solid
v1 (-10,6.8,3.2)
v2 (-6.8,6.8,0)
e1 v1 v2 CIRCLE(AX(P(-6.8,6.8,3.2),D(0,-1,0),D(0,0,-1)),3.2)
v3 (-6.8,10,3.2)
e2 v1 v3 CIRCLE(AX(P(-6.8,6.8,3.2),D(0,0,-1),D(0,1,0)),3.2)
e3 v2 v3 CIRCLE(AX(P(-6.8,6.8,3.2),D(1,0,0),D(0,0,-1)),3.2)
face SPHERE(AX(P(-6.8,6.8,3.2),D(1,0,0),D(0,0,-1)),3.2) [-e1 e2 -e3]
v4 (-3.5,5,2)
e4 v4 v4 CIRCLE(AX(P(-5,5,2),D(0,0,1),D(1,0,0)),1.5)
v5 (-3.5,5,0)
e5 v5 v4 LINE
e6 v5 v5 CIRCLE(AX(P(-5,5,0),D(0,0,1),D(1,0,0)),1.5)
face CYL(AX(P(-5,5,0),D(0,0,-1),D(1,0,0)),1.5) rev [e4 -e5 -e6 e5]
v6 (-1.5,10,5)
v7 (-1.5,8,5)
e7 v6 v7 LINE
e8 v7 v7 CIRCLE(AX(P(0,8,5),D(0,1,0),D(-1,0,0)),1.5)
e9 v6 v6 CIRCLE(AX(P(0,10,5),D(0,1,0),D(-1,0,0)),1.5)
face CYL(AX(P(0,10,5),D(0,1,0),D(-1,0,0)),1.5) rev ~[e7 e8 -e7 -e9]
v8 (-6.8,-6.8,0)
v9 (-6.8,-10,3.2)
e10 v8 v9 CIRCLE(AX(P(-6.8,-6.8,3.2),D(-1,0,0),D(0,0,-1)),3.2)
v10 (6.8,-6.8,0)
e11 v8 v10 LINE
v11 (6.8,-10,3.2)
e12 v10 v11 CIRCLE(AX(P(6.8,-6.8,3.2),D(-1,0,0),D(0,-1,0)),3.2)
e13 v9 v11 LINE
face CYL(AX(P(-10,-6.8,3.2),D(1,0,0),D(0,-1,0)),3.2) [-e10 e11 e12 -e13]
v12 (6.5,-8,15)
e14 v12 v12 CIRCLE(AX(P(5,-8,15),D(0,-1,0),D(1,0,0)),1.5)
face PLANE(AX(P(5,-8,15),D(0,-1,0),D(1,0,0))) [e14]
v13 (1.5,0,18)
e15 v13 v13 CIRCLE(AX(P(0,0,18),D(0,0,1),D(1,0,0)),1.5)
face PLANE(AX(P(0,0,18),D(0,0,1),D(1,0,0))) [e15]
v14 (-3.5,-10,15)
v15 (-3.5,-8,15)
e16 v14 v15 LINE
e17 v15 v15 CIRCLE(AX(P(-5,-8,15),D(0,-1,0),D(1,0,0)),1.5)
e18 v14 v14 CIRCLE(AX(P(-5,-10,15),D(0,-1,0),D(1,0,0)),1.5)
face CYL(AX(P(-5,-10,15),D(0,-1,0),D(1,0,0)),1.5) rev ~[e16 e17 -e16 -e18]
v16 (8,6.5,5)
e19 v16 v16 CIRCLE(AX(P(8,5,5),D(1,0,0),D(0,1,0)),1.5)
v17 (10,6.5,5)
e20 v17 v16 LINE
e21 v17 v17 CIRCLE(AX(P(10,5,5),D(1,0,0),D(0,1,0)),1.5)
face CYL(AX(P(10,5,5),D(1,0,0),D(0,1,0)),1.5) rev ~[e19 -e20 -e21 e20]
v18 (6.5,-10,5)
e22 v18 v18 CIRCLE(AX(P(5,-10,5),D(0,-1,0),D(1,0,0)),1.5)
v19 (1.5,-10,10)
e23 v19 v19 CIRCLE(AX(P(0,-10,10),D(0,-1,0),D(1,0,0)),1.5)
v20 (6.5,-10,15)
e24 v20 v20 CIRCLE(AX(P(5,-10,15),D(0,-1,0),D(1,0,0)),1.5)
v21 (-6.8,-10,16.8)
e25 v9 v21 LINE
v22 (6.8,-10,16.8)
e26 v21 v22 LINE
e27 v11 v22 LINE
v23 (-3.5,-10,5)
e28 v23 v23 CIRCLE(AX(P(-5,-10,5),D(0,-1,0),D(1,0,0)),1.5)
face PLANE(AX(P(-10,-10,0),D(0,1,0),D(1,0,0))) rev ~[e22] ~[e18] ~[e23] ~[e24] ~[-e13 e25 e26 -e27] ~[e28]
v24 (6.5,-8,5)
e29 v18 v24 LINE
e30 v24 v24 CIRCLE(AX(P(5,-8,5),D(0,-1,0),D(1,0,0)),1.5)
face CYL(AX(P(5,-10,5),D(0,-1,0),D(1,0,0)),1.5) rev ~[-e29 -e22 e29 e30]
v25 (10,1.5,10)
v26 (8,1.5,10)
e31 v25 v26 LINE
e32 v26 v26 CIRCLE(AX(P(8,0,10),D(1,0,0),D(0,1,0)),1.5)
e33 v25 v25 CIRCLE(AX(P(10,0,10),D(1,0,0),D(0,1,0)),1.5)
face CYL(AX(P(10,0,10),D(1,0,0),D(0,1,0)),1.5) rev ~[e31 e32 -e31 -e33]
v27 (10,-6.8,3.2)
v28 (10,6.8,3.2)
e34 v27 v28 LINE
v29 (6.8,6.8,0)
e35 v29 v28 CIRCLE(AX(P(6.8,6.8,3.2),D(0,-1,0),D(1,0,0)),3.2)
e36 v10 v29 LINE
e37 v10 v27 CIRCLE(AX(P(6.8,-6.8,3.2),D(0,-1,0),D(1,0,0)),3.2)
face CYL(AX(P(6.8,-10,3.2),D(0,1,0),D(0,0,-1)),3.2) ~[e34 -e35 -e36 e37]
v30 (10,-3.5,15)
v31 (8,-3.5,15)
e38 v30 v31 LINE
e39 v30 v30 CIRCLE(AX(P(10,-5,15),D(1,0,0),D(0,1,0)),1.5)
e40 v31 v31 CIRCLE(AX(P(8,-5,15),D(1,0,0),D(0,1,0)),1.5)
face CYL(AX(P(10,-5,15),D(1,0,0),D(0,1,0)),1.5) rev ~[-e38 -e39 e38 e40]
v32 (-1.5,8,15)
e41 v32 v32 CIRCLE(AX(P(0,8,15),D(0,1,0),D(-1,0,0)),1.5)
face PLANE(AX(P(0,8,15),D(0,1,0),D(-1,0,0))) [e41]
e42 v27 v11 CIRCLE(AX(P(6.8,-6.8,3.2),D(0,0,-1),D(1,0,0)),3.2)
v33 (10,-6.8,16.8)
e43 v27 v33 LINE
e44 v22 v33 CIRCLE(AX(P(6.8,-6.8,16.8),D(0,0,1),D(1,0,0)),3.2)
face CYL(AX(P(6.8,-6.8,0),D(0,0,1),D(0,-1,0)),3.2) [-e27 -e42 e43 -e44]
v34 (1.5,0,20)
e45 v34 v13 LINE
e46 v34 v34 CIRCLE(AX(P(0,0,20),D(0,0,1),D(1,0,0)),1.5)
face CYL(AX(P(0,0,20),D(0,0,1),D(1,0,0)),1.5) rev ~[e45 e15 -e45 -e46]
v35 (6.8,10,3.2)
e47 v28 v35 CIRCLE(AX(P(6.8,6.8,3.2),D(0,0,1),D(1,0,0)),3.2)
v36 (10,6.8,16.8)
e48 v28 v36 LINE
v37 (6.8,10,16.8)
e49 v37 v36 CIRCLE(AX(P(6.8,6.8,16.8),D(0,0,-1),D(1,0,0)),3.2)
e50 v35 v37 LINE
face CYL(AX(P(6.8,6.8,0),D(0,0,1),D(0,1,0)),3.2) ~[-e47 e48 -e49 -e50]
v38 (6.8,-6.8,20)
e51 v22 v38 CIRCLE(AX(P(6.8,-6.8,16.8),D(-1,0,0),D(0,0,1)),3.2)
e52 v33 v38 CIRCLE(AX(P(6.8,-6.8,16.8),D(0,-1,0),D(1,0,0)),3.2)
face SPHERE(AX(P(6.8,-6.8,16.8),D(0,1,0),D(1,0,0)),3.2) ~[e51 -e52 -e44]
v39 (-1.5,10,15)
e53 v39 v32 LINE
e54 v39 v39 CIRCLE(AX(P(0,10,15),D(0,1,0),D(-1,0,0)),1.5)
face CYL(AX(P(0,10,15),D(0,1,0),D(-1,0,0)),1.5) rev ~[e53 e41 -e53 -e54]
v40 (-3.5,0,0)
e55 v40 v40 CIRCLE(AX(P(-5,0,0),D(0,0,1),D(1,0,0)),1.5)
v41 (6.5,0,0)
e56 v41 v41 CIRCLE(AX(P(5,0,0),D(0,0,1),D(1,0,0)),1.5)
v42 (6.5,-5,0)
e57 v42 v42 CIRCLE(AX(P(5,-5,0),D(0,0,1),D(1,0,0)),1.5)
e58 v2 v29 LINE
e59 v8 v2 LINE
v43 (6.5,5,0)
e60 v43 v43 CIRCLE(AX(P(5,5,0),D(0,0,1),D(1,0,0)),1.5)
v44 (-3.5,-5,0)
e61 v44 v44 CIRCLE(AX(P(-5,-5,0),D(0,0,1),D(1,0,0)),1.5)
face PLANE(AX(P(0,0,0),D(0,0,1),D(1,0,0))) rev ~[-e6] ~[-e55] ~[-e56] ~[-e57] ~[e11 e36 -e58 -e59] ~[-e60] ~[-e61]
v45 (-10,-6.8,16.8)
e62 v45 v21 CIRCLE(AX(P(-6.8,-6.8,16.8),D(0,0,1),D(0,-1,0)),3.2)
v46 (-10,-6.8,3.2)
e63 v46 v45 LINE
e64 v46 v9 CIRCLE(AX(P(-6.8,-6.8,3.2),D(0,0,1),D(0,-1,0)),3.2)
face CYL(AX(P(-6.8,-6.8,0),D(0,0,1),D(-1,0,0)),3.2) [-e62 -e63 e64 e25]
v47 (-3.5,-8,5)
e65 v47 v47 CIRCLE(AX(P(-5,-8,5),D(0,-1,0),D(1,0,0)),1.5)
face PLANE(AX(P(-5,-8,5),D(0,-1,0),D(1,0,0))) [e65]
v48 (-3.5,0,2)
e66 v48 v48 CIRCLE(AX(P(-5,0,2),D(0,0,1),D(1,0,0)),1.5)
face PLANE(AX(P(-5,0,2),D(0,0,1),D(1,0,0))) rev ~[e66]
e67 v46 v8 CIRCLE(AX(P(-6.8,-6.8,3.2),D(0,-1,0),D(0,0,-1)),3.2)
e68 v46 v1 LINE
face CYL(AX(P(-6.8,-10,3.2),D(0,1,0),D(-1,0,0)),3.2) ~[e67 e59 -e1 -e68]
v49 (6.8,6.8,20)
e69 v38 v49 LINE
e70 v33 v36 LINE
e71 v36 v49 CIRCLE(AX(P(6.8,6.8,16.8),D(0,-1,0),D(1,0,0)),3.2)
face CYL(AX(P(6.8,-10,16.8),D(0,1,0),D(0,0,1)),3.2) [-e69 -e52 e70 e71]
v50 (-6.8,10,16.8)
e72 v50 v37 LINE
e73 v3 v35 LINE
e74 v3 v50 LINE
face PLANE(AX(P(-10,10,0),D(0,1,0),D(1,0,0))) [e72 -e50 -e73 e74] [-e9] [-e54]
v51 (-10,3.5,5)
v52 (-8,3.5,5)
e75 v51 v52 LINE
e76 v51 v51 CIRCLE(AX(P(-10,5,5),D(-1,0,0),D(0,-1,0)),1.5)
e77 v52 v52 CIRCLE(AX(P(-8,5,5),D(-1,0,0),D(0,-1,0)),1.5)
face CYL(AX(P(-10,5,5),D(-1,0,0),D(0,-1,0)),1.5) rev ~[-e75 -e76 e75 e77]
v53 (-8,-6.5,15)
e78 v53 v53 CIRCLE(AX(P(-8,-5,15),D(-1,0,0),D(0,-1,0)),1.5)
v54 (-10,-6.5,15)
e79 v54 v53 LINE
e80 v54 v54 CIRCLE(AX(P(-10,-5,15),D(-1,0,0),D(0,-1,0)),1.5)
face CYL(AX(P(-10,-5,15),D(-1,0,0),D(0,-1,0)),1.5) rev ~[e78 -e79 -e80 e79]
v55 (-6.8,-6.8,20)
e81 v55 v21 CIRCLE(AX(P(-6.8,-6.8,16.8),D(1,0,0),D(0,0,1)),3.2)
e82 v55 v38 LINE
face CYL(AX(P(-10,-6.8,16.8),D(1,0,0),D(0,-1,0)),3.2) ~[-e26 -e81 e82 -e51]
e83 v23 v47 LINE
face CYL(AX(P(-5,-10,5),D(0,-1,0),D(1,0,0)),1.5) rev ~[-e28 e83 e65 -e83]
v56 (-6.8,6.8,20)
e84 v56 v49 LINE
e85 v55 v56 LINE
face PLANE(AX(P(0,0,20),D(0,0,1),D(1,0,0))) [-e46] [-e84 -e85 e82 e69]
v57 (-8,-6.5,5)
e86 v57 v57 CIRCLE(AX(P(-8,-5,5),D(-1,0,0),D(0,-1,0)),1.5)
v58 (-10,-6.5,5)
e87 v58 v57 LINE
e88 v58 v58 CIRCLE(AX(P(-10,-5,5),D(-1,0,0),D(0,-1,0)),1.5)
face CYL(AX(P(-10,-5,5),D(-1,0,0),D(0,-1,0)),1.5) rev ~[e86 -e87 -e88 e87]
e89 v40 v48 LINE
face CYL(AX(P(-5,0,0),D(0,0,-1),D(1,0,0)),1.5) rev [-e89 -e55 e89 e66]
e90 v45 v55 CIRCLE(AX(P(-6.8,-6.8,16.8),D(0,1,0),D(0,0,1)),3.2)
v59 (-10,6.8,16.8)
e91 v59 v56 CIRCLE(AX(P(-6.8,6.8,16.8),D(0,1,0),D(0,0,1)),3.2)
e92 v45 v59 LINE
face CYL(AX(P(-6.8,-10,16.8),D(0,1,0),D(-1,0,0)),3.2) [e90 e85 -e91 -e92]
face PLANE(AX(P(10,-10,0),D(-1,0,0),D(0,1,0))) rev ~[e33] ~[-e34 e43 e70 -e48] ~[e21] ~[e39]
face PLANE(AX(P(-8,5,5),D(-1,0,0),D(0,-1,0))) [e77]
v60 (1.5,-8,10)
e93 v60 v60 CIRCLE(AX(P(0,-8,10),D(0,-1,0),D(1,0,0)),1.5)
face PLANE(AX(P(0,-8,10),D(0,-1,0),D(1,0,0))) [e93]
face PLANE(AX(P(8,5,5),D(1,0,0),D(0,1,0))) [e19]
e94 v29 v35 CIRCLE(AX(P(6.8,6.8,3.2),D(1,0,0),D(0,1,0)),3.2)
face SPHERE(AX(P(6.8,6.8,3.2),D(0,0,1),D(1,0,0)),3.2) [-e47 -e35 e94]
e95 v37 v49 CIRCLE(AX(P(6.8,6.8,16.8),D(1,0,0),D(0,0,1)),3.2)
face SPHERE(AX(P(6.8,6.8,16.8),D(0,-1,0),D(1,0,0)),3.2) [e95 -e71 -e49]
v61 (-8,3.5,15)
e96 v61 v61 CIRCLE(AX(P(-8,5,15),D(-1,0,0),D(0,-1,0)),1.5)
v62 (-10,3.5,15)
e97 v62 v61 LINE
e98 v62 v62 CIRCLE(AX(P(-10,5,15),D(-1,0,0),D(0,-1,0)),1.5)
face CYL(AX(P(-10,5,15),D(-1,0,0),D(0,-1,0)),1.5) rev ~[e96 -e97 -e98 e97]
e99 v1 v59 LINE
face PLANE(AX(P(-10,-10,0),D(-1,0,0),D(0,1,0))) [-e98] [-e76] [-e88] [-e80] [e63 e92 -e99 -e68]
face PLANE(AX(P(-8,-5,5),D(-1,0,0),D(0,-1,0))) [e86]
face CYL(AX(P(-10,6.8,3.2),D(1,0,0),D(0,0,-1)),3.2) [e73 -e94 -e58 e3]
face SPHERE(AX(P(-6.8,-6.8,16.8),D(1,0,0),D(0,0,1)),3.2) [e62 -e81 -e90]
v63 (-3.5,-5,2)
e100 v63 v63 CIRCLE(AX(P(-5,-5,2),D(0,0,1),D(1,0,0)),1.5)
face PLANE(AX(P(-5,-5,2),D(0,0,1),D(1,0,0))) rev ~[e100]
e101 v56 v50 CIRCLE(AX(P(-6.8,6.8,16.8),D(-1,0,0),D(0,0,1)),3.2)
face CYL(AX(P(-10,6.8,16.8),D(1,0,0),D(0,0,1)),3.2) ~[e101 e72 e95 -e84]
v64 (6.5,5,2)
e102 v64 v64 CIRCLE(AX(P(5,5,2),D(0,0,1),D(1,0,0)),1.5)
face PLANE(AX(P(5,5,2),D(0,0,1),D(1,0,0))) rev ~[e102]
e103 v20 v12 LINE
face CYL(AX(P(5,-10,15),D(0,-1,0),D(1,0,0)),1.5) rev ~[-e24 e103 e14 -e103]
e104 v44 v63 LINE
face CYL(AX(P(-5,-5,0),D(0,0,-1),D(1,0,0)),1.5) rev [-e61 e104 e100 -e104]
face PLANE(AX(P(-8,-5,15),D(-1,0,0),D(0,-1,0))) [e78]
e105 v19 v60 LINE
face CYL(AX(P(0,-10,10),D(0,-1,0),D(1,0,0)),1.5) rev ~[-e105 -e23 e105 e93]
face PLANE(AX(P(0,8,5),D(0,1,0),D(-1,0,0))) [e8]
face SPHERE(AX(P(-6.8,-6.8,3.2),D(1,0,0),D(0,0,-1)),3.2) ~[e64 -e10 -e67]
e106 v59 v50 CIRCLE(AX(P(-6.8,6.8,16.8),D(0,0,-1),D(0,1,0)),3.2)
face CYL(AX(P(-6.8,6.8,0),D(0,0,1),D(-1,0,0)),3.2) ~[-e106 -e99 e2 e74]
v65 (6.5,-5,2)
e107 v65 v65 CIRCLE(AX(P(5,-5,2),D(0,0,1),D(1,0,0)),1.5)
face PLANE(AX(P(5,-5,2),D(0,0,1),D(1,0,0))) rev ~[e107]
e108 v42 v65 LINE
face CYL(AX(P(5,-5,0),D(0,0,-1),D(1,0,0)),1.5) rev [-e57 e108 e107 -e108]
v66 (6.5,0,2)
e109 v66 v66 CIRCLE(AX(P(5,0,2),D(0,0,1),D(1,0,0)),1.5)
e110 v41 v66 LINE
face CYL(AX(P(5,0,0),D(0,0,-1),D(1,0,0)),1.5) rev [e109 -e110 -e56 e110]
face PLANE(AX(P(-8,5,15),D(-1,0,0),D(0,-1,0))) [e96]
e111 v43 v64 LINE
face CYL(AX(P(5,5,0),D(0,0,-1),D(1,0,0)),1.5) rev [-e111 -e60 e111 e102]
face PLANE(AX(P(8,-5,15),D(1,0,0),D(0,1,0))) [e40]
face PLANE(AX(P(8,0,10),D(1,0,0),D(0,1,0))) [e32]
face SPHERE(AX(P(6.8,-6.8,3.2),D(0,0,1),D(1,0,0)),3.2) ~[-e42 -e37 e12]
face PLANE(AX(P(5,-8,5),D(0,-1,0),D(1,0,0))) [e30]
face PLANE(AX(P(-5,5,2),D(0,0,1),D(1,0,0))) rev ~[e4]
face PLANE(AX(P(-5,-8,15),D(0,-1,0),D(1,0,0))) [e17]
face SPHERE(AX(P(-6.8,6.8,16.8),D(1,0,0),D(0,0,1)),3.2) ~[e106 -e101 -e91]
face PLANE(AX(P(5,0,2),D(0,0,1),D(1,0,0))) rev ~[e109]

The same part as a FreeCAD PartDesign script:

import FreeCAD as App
import Part
import Sketcher
from FreeCAD import Vector
Q = App.Units.Quantity


def edges_at(feature, points):
    """Names of the edges that pass closest to the given points."""
    edges = feature.Shape.Edges
    near = lambda p: min(range(len(edges)), key=lambda i: edges[i].distToShape(Part.Vertex(*p))[0])
    return sorted({f"Edge{near(p) + 1}" for p in points})

doc = App.newDocument("Part")
body = doc.addObject("PartDesign::Body", "Body")

# Sketch on XY plane
sketch1 = body.newObject("Sketcher::SketchObject", "Sketch")
sketch1.AttachmentSupport = (doc.getObject("XY_Plane"), [""])
sketch1.MapMode = "FlatFace"
sketch1.addGeometry([
    Part.LineSegment(Vector(-10, 10, 0), Vector(-10, -10, 0)),
    Part.LineSegment(Vector(-10, -10, 0), Vector(10, -10, 0)),
    Part.LineSegment(Vector(10, -10, 0), Vector(10, 10, 0)),
    Part.LineSegment(Vector(10, 10, 0), Vector(-10, 10, 0)),
], False)
sketch1.addConstraint([
    Sketcher.Constraint("Coincident", 0, 2, 1, 1),
    Sketcher.Constraint("Coincident", 1, 2, 2, 1),
    Sketcher.Constraint("Coincident", 2, 2, 3, 1),
    Sketcher.Constraint("Coincident", 3, 2, 0, 1),
    Sketcher.Constraint("Vertical", 0),
    Sketcher.Constraint("Horizontal", 1),
    Sketcher.Constraint("Vertical", 2),
    Sketcher.Constraint("Horizontal", 3),
    Sketcher.Constraint("Symmetric", 0, 2, 2, 2, -1, 1),
    Sketcher.Constraint("Equal", 3, 0),
    Sketcher.Constraint("DistanceX", 1, 1, 1, 2, Q("20 mm")),
])
pad1 = body.newObject("PartDesign::Pad", "Pad")
pad1.Profile = sketch1
pad1.Length = 20

# Sketch on XY plane
sketch2 = body.newObject("Sketcher::SketchObject", "Sketch001")
sketch2.AttachmentSupport = (doc.getObject("XY_Plane"), [""])
sketch2.MapMode = "FlatFace"
sketch2.addGeometry([
    Part.Circle(Vector(-5, 5, 0), Vector(0, 0, 1), 1.5),  # 0
    Part.Circle(Vector(5, 5, 0), Vector(0, 0, 1), 1.5),  # 1
    Part.Circle(Vector(-5, 0, 0), Vector(0, 0, 1), 1.5),  # 2
    Part.Circle(Vector(5, 0, 0), Vector(0, 0, 1), 1.5),  # 3
    Part.Circle(Vector(-5, -5, 0), Vector(0, 0, 1), 1.5),  # 4
    Part.Circle(Vector(5, -5, 0), Vector(0, 0, 1), 1.5),  # 5
], False)
sketch2.addConstraint([
    Sketcher.Constraint("Equal", 0, 1),
    Sketcher.Constraint("Equal", 1, 2),
    Sketcher.Constraint("Equal", 2, 3),
    Sketcher.Constraint("Equal", 3, 4),
    Sketcher.Constraint("Equal", 4, 5),
    Sketcher.Constraint("Symmetric", 2, 3, 3, 3, -1, 1),
    Sketcher.Constraint("Symmetric", 1, 3, 4, 3, -1, 1),
    Sketcher.Constraint("Symmetric", 0, 3, 5, 3, -1, 1),
    Sketcher.Constraint("Symmetric", 0, 3, 1, 3, -2),
    Sketcher.Constraint("PointOnObject", 2, 3, -1),
    Sketcher.Constraint("Vertical", 0, 3, 2, 3),
    Sketcher.Constraint("Diameter", 0, Q("3 mm")),
    Sketcher.Constraint("DistanceX", 0, 3, -1, 1, Q("5 mm")),
    Sketcher.Constraint("DistanceY", -1, 1, 0, 3, Q("5 mm")),
])
pocket1 = body.newObject("PartDesign::Pocket", "Pocket")
pocket1.Profile = sketch2
pocket1.Length = 2
pocket1.Reversed = True

# Sketch on XY plane
sketch3 = body.newObject("Sketcher::SketchObject", "Sketch002")
sketch3.AttachmentSupport = (doc.getObject("XY_Plane"), [""])
sketch3.MapMode = "FlatFace"
sketch3.AttachmentOffset = App.Placement(Vector(0, 0, 20), App.Rotation())
sketch3.addGeometry(Part.Circle(Vector(0, 0, 0), Vector(0, 0, 1), 1.5), False)
sketch3.addConstraint([
    Sketcher.Constraint("Coincident", 0, 3, -1, 1),
    Sketcher.Constraint("Diameter", 0, Q("3 mm")),
])
pocket2 = body.newObject("PartDesign::Pocket", "Pocket001")
pocket2.Profile = sketch3
pocket2.Length = 2

# Sketch on XZ plane
sketch4 = body.newObject("Sketcher::SketchObject", "Sketch003")
sketch4.AttachmentSupport = (doc.getObject("XZ_Plane"), [""])
sketch4.MapMode = "FlatFace"
sketch4.AttachmentOffset = App.Placement(Vector(0, 0, 10), App.Rotation())
sketch4.addGeometry([
    Part.Circle(Vector(0, 10, 0), Vector(0, 0, 1), 1.5),  # 0
    Part.Circle(Vector(-5, 5, 0), Vector(0, 0, 1), 1.5),  # 1
    Part.Circle(Vector(-5, 15, 0), Vector(0, 0, 1), 1.5),  # 2
    Part.Circle(Vector(5, 5, 0), Vector(0, 0, 1), 1.5),  # 3
    Part.Circle(Vector(5, 15, 0), Vector(0, 0, 1), 1.5),  # 4
], False)
sketch4.addConstraint([
    Sketcher.Constraint("Equal", 0, 1),
    Sketcher.Constraint("Equal", 1, 2),
    Sketcher.Constraint("Equal", 2, 3),
    Sketcher.Constraint("Equal", 3, 4),
    Sketcher.Constraint("Symmetric", 1, 3, 3, 3, -2),
    Sketcher.Constraint("Symmetric", 2, 3, 4, 3, -2),
    Sketcher.Constraint("PointOnObject", 0, 3, -2),
    Sketcher.Constraint("Vertical", 1, 3, 2, 3),
    Sketcher.Constraint("Diameter", 0, Q("3 mm")),
    Sketcher.Constraint("DistanceY", -1, 1, 0, 3, Q("10 mm")),
    Sketcher.Constraint("DistanceX", 1, 3, -1, 1, Q("5 mm")),
    Sketcher.Constraint("DistanceY", -1, 1, 1, 3, Q("5 mm")),
    Sketcher.Constraint("DistanceY", -1, 1, 2, 3, Q("15 mm")),
])
pocket3 = body.newObject("PartDesign::Pocket", "Pocket002")
pocket3.Profile = sketch4
pocket3.Length = 2

# Sketch on YZ plane
sketch5 = body.newObject("Sketcher::SketchObject", "Sketch004")
sketch5.AttachmentSupport = (doc.getObject("YZ_Plane"), [""])
sketch5.MapMode = "FlatFace"
sketch5.AttachmentOffset = App.Placement(Vector(0, 0, -10), App.Rotation())
sketch5.addGeometry([
    Part.Circle(Vector(5, 5, 0), Vector(0, 0, 1), 1.5),
    Part.Circle(Vector(5, 15, 0), Vector(0, 0, 1), 1.5),
    Part.Circle(Vector(-5, 5, 0), Vector(0, 0, 1), 1.5),
    Part.Circle(Vector(-5, 15, 0), Vector(0, 0, 1), 1.5),
], False)
sketch5.addConstraint([
    Sketcher.Constraint("Equal", 0, 1),
    Sketcher.Constraint("Equal", 1, 2),
    Sketcher.Constraint("Equal", 2, 3),
    Sketcher.Constraint("Symmetric", 0, 3, 2, 3, -2),
    Sketcher.Constraint("Symmetric", 1, 3, 3, 3, -2),
    Sketcher.Constraint("Vertical", 0, 3, 1, 3),
    Sketcher.Constraint("Diameter", 0, Q("3 mm")),
    Sketcher.Constraint("DistanceX", -1, 1, 0, 3, Q("5 mm")),
    Sketcher.Constraint("DistanceY", -1, 1, 0, 3, Q("5 mm")),
    Sketcher.Constraint("DistanceY", -1, 1, 1, 3, Q("15 mm")),
])
pocket4 = body.newObject("PartDesign::Pocket", "Pocket003")
pocket4.Profile = sketch5
pocket4.Length = 2
pocket4.Reversed = True

# Sketch on YZ plane
sketch6 = body.newObject("Sketcher::SketchObject", "Sketch005")
sketch6.AttachmentSupport = (doc.getObject("YZ_Plane"), [""])
sketch6.MapMode = "FlatFace"
sketch6.AttachmentOffset = App.Placement(Vector(0, 0, 10), App.Rotation())
sketch6.addGeometry([
    Part.Circle(Vector(5, 5, 0), Vector(0, 0, 1), 1.5),
    Part.Circle(Vector(0, 10, 0), Vector(0, 0, 1), 1.5),
    Part.Circle(Vector(-5, 15, 0), Vector(0, 0, 1), 1.5),
], False)
sketch6.addConstraint([
    Sketcher.Constraint("Equal", 0, 1),
    Sketcher.Constraint("Equal", 1, 2),
    Sketcher.Constraint("PointOnObject", 1, 3, -2),
    Sketcher.Constraint("Diameter", 0, Q("3 mm")),
    Sketcher.Constraint("DistanceX", -1, 1, 0, 3, Q("5 mm")),
    Sketcher.Constraint("DistanceY", -1, 1, 0, 3, Q("5 mm")),
    Sketcher.Constraint("DistanceY", -1, 1, 1, 3, Q("10 mm")),
    Sketcher.Constraint("DistanceX", 2, 3, -1, 1, Q("5 mm")),
    Sketcher.Constraint("DistanceY", -1, 1, 2, 3, Q("15 mm")),
])
pocket5 = body.newObject("PartDesign::Pocket", "Pocket004")
pocket5.Profile = sketch6
pocket5.Length = 2

# Sketch on XZ plane
sketch7 = body.newObject("Sketcher::SketchObject", "Sketch006")
sketch7.AttachmentSupport = (doc.getObject("XZ_Plane"), [""])
sketch7.MapMode = "FlatFace"
sketch7.AttachmentOffset = App.Placement(Vector(0, 0, -10), App.Rotation())
sketch7.addGeometry([
    Part.Circle(Vector(0, 5, 0), Vector(0, 0, 1), 1.5),
    Part.Circle(Vector(0, 15, 0), Vector(0, 0, 1), 1.5),
], False)
sketch7.addConstraint([
    Sketcher.Constraint("Equal", 0, 1),
    Sketcher.Constraint("PointOnObject", 0, 3, -2),
    Sketcher.Constraint("PointOnObject", 1, 3, -2),
    Sketcher.Constraint("Diameter", 0, Q("3 mm")),
    Sketcher.Constraint("DistanceY", -1, 1, 0, 3, Q("5 mm")),
    Sketcher.Constraint("DistanceY", -1, 1, 1, 3, Q("15 mm")),
])
pocket6 = body.newObject("PartDesign::Pocket", "Pocket005")
pocket6.Profile = sketch7
pocket6.Length = 2
pocket6.Reversed = True
doc.recompute()

fillet = body.newObject("PartDesign::Fillet", "Fillet")
fillet.Base = (pocket6, edges_at(pocket6, [
    (10, 0, 20),
    (10, 10, 10),
    (0, 10, 20),
    (10, -10, 10),
    (10, 0, 0),
    (0, 10, 0),
    (0, -10, 20),
    (-10, 0, 20),
    (0, -10, 0),
    (-10, 0, 0),
    (-10, -10, 10),
    (-10, 10, 10),
]))
fillet.Radius = 3.2

doc.recompute()
